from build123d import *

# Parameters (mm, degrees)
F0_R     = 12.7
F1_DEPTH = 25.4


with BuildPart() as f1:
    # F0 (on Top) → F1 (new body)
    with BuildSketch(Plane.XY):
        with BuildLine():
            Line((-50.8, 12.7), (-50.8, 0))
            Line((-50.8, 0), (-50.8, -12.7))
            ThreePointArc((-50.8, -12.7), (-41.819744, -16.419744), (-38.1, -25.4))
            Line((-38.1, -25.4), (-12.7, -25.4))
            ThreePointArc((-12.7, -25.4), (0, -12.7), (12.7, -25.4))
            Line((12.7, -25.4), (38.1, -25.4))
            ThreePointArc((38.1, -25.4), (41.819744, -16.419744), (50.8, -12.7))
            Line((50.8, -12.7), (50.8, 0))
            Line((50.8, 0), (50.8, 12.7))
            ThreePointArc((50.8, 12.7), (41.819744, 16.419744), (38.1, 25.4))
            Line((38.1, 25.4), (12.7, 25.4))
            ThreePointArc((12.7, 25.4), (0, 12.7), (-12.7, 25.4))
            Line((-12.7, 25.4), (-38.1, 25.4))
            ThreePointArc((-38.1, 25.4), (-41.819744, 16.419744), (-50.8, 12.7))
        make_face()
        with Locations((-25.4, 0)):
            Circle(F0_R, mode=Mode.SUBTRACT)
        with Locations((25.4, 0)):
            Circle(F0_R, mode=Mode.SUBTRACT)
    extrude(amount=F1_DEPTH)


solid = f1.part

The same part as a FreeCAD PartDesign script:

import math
import FreeCAD as App
import Part
import Sketcher
Q = App.Units.Quantity

doc = App.newDocument("Part")
body = doc.addObject("PartDesign::Body", "Body")

# Sketch on XY plane
sketch1 = body.newObject("Sketcher::SketchObject", "Sketch")
sketch1.AttachmentSupport = (doc.getObject("XY_Plane"), [""])
sketch1.MapMode = "FlatFace"
sketch1.addGeometry(Part.LineSegment(App.Vector(-50.8, 12.7, 0), App.Vector(-50.8, -12.7, 0)), False)
sketch1.addGeometry(Part.ArcOfCircle(Part.Circle(App.Vector(-50.8, -25.4, 0), App.Vector(0, 0, 1), 12.7), math.radians(0.000002), math.radians(89.999998)), False)
sketch1.addGeometry(Part.LineSegment(App.Vector(-38.1, -25.4, 0), App.Vector(-12.7, -25.4, 0)), False)
sketch1.addGeometry(Part.ArcOfCircle(Part.Circle(App.Vector(0, -25.4, 0), App.Vector(0, 0, 1), 12.7), math.radians(0), math.radians(180)), False)
sketch1.addGeometry(Part.LineSegment(App.Vector(12.7, -25.4, 0), App.Vector(38.1, -25.4, 0)), False)
sketch1.addGeometry(Part.ArcOfCircle(Part.Circle(App.Vector(50.8, -25.4, 0), App.Vector(0, 0, 1), 12.7), math.radians(90.000002), math.radians(179.999998)), False)
sketch1.addGeometry(Part.LineSegment(App.Vector(50.8, -12.7, 0), App.Vector(50.8, 12.7, 0)), False)
sketch1.addGeometry(Part.ArcOfCircle(Part.Circle(App.Vector(50.8, 25.4, 0), App.Vector(0, 0, 1), 12.7), math.radians(-179.999998), math.radians(-90.000002)), False)
sketch1.addGeometry(Part.LineSegment(App.Vector(38.1, 25.4, 0), App.Vector(12.7, 25.4, 0)), False)
sketch1.addGeometry(Part.ArcOfCircle(Part.Circle(App.Vector(0, 25.4, 0), App.Vector(0, 0, 1), 12.7), math.radians(180), math.radians(360)), False)
sketch1.addGeometry(Part.LineSegment(App.Vector(-12.7, 25.4, 0), App.Vector(-38.1, 25.4, 0)), False)
sketch1.addGeometry(Part.ArcOfCircle(Part.Circle(App.Vector(-50.8, 25.4, 0), App.Vector(0, 0, 1), 12.7), math.radians(-89.999998), math.radians(-0.000002)), False)
sketch1.addGeometry(Part.Circle(App.Vector(-25.4, 0, 0), App.Vector(0, 0, 1), 12.7), False)
sketch1.addGeometry(Part.Circle(App.Vector(25.4, 0, 0), App.Vector(0, 0, 1), 12.7), False)
sketch1.addConstraint(Sketcher.Constraint("Coincident", 0, 2, 1, 2))
sketch1.addConstraint(Sketcher.Constraint("Coincident", 1, 1, 2, 1))
sketch1.addConstraint(Sketcher.Constraint("Coincident", 2, 2, 3, 2))
sketch1.addConstraint(Sketcher.Constraint("Coincident", 3, 1, 4, 1))
sketch1.addConstraint(Sketcher.Constraint("Coincident", 4, 2, 5, 2))
sketch1.addConstraint(Sketcher.Constraint("Coincident", 5, 1, 6, 1))
sketch1.addConstraint(Sketcher.Constraint("Coincident", 6, 2, 7, 2))
sketch1.addConstraint(Sketcher.Constraint("Coincident", 7, 1, 8, 1))
sketch1.addConstraint(Sketcher.Constraint("Coincident", 8, 2, 9, 2))
sketch1.addConstraint(Sketcher.Constraint("Coincident", 9, 1, 10, 1))
sketch1.addConstraint(Sketcher.Constraint("Coincident", 10, 2, 11, 2))
sketch1.addConstraint(Sketcher.Constraint("Coincident", 11, 1, 0, 1))
sketch1.addConstraint(Sketcher.Constraint("Vertical", 0))
sketch1.addConstraint(Sketcher.Constraint("Horizontal", 2))
sketch1.addConstraint(Sketcher.Constraint("Horizontal", 4))
sketch1.addConstraint(Sketcher.Constraint("Vertical", 6))
sketch1.addConstraint(Sketcher.Constraint("Horizontal", 8))
sketch1.addConstraint(Sketcher.Constraint("Horizontal", 10))
sketch1.addConstraint(Sketcher.Constraint("Equal", 1, 3))
sketch1.addConstraint(Sketcher.Constraint("Equal", 3, 5))
sketch1.addConstraint(Sketcher.Constraint("Equal", 5, 7))
sketch1.addConstraint(Sketcher.Constraint("Equal", 7, 9))
sketch1.addConstraint(Sketcher.Constraint("Equal", 9, 11))
sketch1.addConstraint(Sketcher.Constraint("Equal", 11, 12))
sketch1.addConstraint(Sketcher.Constraint("Equal", 12, 13))
sketch1.addConstraint(Sketcher.Constraint("Symmetric", 1, 3, 7, 3, -1, 1))
sketch1.addConstraint(Sketcher.Constraint("Symmetric", 3, 3, 9, 3, -1, 1))
sketch1.addConstraint(Sketcher.Constraint("Symmetric", 5, 3, 11, 3, -1, 1))
sketch1.addConstraint(Sketcher.Constraint("Symmetric", 12, 3, 13, 3, -1, 1))
sketch1.addConstraint(Sketcher.Constraint("Symmetric", 1, 3, 5, 3, -2))
sketch1.addConstraint(Sketcher.Constraint("Symmetric", 2, 2, 3, 1, -2))
sketch1.addConstraint(Sketcher.Constraint("PointOnObject", 12, 3, -1))
sketch1.addConstraint(Sketcher.Constraint("Horizontal", 1, 3, 3, 3))
sketch1.addConstraint(Sketcher.Constraint("Horizontal", 5, 3, 1, 1))
sketch1.addConstraint(Sketcher.Constraint("Horizontal", 11, 3, 7, 1))
sketch1.addConstraint(Sketcher.Constraint("Horizontal", 8, 2, 9, 1))
sketch1.addConstraint(Sketcher.Constraint("Vertical", 11, 3, 0, 2))
sketch1.addConstraint(Sketcher.Constraint("Vertical", 7, 3, 5, 1))
sketch1.addConstraint(Sketcher.Constraint("Equal", 10, 0))
sketch1.addConstraint(Sketcher.Constraint("Diameter", 12, Q("1 in")))
sketch1.addConstraint(Sketcher.Constraint("DistanceX", 2, 1, 2, 2, Q("1 in")))
sketch1.addConstraint(Sketcher.Constraint("DistanceX", 12, 3, -1, 1, Q("1 in")))
pad1 = body.newObject("PartDesign::Pad", "Pad")
pad1.Profile = sketch1
pad1.Length = Q("1 in")

doc.recompute()
